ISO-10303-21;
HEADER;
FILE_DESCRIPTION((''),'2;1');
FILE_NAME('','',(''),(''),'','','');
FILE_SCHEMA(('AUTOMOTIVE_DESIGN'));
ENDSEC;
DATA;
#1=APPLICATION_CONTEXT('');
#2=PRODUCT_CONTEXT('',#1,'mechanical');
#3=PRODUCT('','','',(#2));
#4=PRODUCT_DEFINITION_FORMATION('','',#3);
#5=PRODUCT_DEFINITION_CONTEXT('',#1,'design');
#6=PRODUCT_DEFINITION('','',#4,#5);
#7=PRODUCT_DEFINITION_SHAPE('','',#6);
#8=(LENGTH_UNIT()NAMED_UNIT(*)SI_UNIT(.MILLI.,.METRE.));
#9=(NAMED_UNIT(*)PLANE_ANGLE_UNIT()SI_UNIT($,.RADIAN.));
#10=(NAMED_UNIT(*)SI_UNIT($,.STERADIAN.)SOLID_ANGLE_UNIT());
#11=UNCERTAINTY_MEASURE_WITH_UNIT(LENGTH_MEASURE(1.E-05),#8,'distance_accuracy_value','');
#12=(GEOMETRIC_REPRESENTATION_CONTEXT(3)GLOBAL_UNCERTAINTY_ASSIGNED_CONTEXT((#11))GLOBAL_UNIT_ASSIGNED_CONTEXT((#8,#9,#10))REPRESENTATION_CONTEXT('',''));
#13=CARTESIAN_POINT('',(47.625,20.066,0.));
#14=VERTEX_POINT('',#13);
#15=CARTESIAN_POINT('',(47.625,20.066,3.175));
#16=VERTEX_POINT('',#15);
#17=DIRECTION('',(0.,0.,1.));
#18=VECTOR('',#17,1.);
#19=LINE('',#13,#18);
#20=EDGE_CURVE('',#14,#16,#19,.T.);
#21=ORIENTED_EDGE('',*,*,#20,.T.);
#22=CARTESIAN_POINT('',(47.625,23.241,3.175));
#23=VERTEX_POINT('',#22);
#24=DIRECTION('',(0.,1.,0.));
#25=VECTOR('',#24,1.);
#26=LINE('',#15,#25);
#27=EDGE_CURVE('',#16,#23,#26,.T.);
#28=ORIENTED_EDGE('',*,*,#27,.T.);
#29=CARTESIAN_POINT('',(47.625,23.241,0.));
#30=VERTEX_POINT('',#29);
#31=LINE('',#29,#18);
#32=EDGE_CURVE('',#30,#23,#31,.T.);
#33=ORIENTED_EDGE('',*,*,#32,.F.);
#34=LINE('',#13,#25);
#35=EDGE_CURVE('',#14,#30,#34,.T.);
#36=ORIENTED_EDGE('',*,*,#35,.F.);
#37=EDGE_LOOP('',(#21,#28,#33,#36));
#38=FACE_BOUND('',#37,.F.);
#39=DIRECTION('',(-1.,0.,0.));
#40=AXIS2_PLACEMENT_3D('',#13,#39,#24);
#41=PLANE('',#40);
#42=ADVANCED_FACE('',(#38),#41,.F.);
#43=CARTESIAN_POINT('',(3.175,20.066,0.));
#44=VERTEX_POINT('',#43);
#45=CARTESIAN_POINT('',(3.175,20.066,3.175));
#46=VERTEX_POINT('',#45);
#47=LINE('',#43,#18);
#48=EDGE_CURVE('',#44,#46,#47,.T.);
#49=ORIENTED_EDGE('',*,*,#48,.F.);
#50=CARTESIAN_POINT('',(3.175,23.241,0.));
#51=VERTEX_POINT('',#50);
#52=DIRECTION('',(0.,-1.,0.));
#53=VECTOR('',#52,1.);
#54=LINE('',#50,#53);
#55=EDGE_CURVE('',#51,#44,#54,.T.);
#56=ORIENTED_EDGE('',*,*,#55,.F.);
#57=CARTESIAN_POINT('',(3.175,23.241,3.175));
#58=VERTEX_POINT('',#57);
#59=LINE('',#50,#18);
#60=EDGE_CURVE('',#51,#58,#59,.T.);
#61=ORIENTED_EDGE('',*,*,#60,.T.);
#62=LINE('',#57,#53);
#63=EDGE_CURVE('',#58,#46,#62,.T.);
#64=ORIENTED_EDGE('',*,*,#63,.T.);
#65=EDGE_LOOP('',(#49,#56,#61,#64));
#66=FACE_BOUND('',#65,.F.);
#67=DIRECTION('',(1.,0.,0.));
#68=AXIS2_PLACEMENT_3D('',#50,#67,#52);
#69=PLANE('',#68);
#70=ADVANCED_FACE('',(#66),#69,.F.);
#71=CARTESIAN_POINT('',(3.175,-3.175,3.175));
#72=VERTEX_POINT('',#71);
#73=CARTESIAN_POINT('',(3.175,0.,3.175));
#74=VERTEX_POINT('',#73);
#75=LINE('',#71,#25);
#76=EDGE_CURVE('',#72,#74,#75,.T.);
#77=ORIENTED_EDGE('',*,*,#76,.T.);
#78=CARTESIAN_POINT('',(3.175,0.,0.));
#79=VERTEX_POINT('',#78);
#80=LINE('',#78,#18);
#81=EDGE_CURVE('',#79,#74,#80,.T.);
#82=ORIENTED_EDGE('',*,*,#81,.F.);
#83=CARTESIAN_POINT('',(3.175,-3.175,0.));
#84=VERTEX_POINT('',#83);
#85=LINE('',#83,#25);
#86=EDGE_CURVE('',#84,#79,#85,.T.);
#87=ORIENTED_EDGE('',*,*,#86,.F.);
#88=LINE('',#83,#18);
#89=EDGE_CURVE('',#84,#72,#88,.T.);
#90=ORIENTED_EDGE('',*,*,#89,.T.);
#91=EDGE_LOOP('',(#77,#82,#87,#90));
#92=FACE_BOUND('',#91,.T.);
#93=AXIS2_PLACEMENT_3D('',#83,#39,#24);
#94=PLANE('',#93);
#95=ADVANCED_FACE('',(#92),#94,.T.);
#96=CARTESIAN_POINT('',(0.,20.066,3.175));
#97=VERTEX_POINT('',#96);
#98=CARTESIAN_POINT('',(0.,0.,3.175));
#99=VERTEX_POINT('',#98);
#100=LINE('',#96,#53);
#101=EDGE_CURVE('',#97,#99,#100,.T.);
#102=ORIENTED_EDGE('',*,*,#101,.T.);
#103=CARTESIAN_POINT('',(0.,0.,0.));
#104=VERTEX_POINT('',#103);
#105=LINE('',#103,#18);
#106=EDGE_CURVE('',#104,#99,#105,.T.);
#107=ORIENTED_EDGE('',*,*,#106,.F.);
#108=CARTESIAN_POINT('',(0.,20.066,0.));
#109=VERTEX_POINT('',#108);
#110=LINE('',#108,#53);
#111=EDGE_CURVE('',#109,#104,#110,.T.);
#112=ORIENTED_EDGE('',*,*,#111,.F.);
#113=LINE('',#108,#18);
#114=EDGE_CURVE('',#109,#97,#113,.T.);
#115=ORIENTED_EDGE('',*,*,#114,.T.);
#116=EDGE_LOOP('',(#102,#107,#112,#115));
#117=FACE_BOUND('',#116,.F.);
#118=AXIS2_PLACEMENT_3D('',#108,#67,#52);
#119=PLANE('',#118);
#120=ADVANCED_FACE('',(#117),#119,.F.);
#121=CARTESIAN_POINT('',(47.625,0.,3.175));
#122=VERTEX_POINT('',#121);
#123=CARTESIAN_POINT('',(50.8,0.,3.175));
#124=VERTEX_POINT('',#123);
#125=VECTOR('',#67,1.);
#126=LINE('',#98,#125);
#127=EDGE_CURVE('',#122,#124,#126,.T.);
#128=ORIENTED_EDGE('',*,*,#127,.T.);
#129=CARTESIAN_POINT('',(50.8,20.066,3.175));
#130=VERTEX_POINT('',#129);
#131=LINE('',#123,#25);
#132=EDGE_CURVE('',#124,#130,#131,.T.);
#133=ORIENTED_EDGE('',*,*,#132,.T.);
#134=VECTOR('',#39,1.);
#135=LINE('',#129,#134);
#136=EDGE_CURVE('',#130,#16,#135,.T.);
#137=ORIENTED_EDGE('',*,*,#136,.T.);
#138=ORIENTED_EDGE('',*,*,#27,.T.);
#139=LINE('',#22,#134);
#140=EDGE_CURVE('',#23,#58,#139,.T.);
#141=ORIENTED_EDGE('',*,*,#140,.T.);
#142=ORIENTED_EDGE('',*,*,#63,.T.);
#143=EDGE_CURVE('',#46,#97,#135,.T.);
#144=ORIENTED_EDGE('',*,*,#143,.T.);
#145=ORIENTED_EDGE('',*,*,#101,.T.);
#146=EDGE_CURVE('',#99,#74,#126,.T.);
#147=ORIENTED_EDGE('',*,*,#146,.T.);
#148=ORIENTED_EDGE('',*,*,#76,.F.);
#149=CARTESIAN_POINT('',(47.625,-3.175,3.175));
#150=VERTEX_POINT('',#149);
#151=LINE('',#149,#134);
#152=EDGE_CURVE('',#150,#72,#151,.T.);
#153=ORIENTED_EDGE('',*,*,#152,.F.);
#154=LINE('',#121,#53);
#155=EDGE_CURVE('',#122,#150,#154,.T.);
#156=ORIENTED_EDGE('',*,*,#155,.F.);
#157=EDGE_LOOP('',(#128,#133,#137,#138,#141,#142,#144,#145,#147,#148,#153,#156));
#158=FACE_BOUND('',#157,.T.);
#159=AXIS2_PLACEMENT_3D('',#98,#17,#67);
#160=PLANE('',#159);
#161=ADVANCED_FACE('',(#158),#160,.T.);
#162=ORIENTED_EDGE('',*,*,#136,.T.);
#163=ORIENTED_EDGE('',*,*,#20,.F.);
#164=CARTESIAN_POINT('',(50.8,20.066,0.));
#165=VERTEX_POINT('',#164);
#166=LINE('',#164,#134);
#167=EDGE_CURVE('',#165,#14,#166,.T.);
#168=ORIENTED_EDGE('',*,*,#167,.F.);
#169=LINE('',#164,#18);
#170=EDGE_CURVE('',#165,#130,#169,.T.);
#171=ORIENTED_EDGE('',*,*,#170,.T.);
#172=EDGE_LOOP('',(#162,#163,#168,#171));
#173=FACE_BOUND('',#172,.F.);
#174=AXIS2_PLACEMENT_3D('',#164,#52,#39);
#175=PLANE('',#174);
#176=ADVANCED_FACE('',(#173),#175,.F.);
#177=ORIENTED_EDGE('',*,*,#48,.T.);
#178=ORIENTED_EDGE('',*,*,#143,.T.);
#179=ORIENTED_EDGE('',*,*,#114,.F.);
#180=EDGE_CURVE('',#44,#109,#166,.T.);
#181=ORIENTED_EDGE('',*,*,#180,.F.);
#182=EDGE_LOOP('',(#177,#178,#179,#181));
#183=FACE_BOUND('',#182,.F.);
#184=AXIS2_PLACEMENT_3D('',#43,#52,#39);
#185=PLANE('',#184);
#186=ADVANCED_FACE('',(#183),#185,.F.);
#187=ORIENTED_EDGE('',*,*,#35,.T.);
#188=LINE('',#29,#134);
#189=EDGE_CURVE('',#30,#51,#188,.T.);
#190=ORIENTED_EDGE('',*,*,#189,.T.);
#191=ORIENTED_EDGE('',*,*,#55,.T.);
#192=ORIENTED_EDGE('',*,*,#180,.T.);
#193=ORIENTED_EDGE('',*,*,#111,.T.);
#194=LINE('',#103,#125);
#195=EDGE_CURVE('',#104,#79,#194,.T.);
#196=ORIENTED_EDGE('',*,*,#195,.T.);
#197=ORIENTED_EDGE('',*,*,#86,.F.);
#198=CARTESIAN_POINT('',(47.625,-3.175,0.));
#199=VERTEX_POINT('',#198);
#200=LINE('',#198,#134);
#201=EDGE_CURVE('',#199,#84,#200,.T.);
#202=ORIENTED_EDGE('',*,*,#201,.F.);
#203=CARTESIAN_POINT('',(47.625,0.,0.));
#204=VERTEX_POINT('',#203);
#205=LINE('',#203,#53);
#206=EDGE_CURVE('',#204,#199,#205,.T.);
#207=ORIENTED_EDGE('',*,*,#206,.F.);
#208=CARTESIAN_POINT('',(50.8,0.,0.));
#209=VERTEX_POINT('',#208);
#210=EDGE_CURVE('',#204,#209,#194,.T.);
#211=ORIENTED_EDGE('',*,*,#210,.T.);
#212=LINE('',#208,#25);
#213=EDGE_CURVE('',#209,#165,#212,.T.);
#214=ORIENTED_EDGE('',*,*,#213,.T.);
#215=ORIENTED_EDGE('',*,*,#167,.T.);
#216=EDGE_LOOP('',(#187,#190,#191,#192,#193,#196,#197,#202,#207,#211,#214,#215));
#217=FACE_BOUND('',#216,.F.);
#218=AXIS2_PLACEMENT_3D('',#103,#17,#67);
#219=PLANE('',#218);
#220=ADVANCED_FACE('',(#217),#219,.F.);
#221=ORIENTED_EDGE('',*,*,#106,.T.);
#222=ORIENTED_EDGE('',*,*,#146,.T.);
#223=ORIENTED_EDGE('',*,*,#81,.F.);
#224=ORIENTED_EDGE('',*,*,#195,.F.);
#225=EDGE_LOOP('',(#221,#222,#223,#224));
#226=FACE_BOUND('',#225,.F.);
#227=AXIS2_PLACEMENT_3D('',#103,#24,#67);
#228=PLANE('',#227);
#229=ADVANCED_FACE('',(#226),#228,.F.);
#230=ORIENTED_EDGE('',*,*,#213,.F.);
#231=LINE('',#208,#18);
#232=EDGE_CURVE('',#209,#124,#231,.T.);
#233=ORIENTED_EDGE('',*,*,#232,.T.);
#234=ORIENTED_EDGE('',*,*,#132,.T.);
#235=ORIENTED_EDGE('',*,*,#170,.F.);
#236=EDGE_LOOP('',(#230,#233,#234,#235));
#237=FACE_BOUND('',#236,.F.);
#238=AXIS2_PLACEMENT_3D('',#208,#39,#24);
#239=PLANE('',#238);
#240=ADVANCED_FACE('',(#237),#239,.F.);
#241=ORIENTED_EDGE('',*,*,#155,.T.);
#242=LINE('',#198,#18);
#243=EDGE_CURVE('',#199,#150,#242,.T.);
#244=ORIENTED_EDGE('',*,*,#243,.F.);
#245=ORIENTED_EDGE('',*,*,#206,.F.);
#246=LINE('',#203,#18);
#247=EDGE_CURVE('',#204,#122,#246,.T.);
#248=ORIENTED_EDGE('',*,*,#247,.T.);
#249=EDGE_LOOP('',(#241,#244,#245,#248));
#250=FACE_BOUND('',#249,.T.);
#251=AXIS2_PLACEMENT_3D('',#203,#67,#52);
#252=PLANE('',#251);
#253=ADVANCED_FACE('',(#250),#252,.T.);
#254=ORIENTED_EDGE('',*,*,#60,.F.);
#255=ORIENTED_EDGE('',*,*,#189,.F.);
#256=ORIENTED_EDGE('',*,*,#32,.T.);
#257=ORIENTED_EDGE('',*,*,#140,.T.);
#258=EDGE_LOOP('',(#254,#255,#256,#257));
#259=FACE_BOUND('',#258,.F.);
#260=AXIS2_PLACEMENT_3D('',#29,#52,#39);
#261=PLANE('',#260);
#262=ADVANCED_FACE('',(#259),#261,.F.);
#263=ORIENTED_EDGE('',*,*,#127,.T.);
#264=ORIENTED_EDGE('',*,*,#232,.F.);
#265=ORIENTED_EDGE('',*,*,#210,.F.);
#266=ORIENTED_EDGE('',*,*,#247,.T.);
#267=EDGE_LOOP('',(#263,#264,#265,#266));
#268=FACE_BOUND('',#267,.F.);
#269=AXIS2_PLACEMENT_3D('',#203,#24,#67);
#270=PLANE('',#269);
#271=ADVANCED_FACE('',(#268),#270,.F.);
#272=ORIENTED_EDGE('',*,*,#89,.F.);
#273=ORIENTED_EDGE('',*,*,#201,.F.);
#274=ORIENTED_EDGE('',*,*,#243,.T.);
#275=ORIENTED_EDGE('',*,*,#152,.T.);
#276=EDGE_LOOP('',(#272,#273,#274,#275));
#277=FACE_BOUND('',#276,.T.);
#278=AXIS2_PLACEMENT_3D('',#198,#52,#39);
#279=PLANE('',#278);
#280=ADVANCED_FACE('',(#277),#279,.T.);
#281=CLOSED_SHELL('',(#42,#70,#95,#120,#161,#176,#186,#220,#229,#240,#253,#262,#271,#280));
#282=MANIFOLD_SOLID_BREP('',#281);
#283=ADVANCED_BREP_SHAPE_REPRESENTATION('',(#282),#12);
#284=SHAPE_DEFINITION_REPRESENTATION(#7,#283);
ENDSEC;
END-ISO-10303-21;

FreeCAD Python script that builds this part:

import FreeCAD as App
import Part
import Sketcher

V = App.Vector
Q = App.Units.Quantity

doc = App.newDocument("Part")
body = doc.addObject("PartDesign::Body", "Body")

# Sketch on XY plane
sketch1 = doc.addObject("Sketcher::SketchObject", "Sketch")
body.addObject(sketch1)
sketch1.AttachmentSupport = (doc.XY_Plane, [""])
sketch1.MapMode = "FlatFace"
sketch1.addGeometry([
    Part.LineSegment(V(0, 20.066, 0), V(0, 0, 0)),  # 0
    Part.LineSegment(V(0, 0, 0), V(3.175, 0, 0)),  # 1
    Part.LineSegment(V(3.175, 0, 0), V(3.175, -3.175, 0)),  # 2
    Part.LineSegment(V(3.175, -3.175, 0), V(47.625, -3.175, 0)),  # 3
    Part.LineSegment(V(47.625, -3.175, 0), V(47.625, 0, 0)),  # 4
    Part.LineSegment(V(47.625, 0, 0), V(50.8, 0, 0)),  # 5
    Part.LineSegment(V(50.8, 0, 0), V(50.8, 20.066, 0)),  # 6
    Part.LineSegment(V(50.8, 20.066, 0), V(47.625, 20.066, 0)),  # 7
    Part.LineSegment(V(47.625, 20.066, 0), V(47.625, 23.241, 0)),  # 8
    Part.LineSegment(V(47.625, 23.241, 0), V(3.175, 23.241, 0)),  # 9
    Part.LineSegment(V(3.175, 23.241, 0), V(3.175, 20.066, 0)),  # 10
    Part.LineSegment(V(3.175, 20.066, 0), V(0, 20.066, 0)),  # 11
], False)
sketch1.addConstraint([
    Sketcher.Constraint("Coincident", 0, 2, 1, 1),
    Sketcher.Constraint("Coincident", 1, 2, 2, 1),
    Sketcher.Constraint("Coincident", 2, 2, 3, 1),
    Sketcher.Constraint("Coincident", 3, 2, 4, 1),
    Sketcher.Constraint("Coincident", 4, 2, 5, 1),
    Sketcher.Constraint("Coincident", 5, 2, 6, 1),
    Sketcher.Constraint("Coincident", 6, 2, 7, 1),
    Sketcher.Constraint("Coincident", 7, 2, 8, 1),
    Sketcher.Constraint("Coincident", 8, 2, 9, 1),
    Sketcher.Constraint("Coincident", 9, 2, 10, 1),
    Sketcher.Constraint("Coincident", 10, 2, 11, 1),
    Sketcher.Constraint("Coincident", 11, 2, 0, 1),
    Sketcher.Constraint("Vertical", 0),
    Sketcher.Constraint("Horizontal", 1),
    Sketcher.Constraint("Vertical", 2),
    Sketcher.Constraint("Horizontal", 3),
    Sketcher.Constraint("Vertical", 4),
    Sketcher.Constraint("Horizontal", 5),
    Sketcher.Constraint("Vertical", 6),
    Sketcher.Constraint("Horizontal", 7),
    Sketcher.Constraint("Vertical", 8),
    Sketcher.Constraint("Horizontal", 9),
    Sketcher.Constraint("Vertical", 10),
    Sketcher.Constraint("Horizontal", 11),
    Sketcher.Constraint("Coincident", 0, 2, -1, 1),
    Sketcher.Constraint("PointOnObject", 4, 2, -1),
    Sketcher.Constraint("Horizontal", 7, 2, 10, 2),
    Sketcher.Constraint("Vertical", 4, 2, 7, 2),
    Sketcher.Constraint("Vertical", 2, 2, 9, 2),
    Sketcher.Constraint("Equal", 1, 5),
    Sketcher.Constraint("Equal", 11, 2),
    Sketcher.Constraint("Equal", 4, 8),
    Sketcher.Constraint("DistanceX", 3, 1, 3, 2, Q("1.75 in")),
    Sketcher.Constraint("DistanceY", 0, 2, 0, 1, Q("0.79 in")),
    Sketcher.Constraint("DistanceX", 1, 1, 1, 2, Q("0.125 in")),
])
pad1 = doc.addObject("PartDesign::Pad", "Pad")
body.addObject(pad1)
pad1.Profile = sketch1
pad1.Length = Q("0.125 in")

doc.recompute()
